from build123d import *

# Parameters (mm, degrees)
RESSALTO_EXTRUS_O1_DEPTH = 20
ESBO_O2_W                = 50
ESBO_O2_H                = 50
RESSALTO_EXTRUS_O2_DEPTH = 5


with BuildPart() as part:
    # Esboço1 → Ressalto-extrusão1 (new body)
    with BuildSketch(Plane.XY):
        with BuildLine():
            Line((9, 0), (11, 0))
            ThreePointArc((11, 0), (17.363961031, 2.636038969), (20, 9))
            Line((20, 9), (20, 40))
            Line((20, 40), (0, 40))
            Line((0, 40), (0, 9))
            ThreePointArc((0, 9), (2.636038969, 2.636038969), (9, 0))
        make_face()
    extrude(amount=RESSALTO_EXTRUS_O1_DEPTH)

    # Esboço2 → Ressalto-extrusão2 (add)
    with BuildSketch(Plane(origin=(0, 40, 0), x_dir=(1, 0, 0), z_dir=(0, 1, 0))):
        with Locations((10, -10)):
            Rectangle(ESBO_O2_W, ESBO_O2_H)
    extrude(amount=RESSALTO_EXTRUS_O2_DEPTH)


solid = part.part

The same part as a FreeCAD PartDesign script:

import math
import FreeCAD as App
import Part
import Sketcher

V = App.Vector

doc = App.newDocument("Part")
body = doc.addObject("PartDesign::Body", "Body")

# Sketch on XY plane
sketch1 = doc.addObject("Sketcher::SketchObject", "Sketch")
body.addObject(sketch1)
sketch1.AttachmentSupport = (doc.XY_Plane, [""])
sketch1.MapMode = "FlatFace"
sketch1.addGeometry([
    Part.LineSegment(V(9, 0, 0), V(11, 0, 0)),  # 0
    Part.ArcOfCircle(Part.Circle(V(11, 9, 0), V(0, 0, 1), 9), math.radians(-90), math.radians(0)),  # 1
    Part.LineSegment(V(20, 9, 0), V(20, 40, 0)),  # 2
    Part.LineSegment(V(20, 40, 0), V(0, 40, 0)),  # 3
    Part.LineSegment(V(0, 40, 0), V(0, 9, 0)),  # 4
    Part.ArcOfCircle(Part.Circle(V(9, 9, 0), V(0, 0, 1), 9), math.radians(180), math.radians(270)),  # 5
], False)
sketch1.addConstraint([
    Sketcher.Constraint("Tangent", 0, 2, 1, 1),
    Sketcher.Constraint("Tangent", 1, 2, 2, 1),
    Sketcher.Constraint("Coincident", 2, 2, 3, 1),
    Sketcher.Constraint("Coincident", 3, 2, 4, 1),
    Sketcher.Constraint("Tangent", 4, 2, 5, 1),
    Sketcher.Constraint("Tangent", 5, 2, 0, 1),
    Sketcher.Constraint("Horizontal", 0),
    Sketcher.Constraint("Vertical", 2),
    Sketcher.Constraint("Horizontal", 3),
    Sketcher.Constraint("Vertical", 4),
    Sketcher.Constraint("Equal", 1, 5),
    Sketcher.Constraint("PointOnObject", 0, 2, -1),
    Sketcher.Constraint("PointOnObject", 3, 2, -2),
    Sketcher.Constraint("Radius", 1, 9.0),
    Sketcher.Constraint("DistanceX", 0, 1, 0, 2, 2.0),
    Sketcher.Constraint("DistanceY", 2, 1, 2, 2, 31.0),
])
pad1 = doc.addObject("PartDesign::Pad", "Pad")
body.addObject(pad1)
pad1.Profile = sketch1
pad1.Length = 20

# Sketch on XZ plane
sketch2 = doc.addObject("Sketcher::SketchObject", "Sketch001")
body.addObject(sketch2)
sketch2.AttachmentSupport = (doc.XZ_Plane, [""])
sketch2.MapMode = "FlatFace"
sketch2.AttachmentOffset = App.Placement(V(0, 0, -40), App.Rotation())
sketch2.addGeometry([
    Part.LineSegment(V(-15, -15, 0), V(-15, 35, 0)),
    Part.LineSegment(V(-15, 35, 0), V(35, 35, 0)),
    Part.LineSegment(V(35, 35, 0), V(35, -15, 0)),
    Part.LineSegment(V(35, -15, 0), V(-15, -15, 0)),
], False)
sketch2.addConstraint([
    Sketcher.Constraint("Coincident", 0, 2, 1, 1),
    Sketcher.Constraint("Coincident", 1, 2, 2, 1),
    Sketcher.Constraint("Coincident", 2, 2, 3, 1),
    Sketcher.Constraint("Coincident", 3, 2, 0, 1),
    Sketcher.Constraint("Vertical", 0),
    Sketcher.Constraint("Horizontal", 1),
    Sketcher.Constraint("Vertical", 2),
    Sketcher.Constraint("Horizontal", 3),
    Sketcher.Constraint("Equal", 3, 0),
    Sketcher.Constraint("DistanceX", 1, 1, 1, 2, 50.0),
    Sketcher.Constraint("DistanceX", 0, 2, -1, 1, 15.0),
    Sketcher.Constraint("DistanceY", -1, 1, 0, 2, 35.0),
])
pad2 = doc.addObject("PartDesign::Pad", "Pad001")
body.addObject(pad2)
pad2.Profile = sketch2
pad2.Length = 5
pad2.Reversed = True

doc.recompute()
